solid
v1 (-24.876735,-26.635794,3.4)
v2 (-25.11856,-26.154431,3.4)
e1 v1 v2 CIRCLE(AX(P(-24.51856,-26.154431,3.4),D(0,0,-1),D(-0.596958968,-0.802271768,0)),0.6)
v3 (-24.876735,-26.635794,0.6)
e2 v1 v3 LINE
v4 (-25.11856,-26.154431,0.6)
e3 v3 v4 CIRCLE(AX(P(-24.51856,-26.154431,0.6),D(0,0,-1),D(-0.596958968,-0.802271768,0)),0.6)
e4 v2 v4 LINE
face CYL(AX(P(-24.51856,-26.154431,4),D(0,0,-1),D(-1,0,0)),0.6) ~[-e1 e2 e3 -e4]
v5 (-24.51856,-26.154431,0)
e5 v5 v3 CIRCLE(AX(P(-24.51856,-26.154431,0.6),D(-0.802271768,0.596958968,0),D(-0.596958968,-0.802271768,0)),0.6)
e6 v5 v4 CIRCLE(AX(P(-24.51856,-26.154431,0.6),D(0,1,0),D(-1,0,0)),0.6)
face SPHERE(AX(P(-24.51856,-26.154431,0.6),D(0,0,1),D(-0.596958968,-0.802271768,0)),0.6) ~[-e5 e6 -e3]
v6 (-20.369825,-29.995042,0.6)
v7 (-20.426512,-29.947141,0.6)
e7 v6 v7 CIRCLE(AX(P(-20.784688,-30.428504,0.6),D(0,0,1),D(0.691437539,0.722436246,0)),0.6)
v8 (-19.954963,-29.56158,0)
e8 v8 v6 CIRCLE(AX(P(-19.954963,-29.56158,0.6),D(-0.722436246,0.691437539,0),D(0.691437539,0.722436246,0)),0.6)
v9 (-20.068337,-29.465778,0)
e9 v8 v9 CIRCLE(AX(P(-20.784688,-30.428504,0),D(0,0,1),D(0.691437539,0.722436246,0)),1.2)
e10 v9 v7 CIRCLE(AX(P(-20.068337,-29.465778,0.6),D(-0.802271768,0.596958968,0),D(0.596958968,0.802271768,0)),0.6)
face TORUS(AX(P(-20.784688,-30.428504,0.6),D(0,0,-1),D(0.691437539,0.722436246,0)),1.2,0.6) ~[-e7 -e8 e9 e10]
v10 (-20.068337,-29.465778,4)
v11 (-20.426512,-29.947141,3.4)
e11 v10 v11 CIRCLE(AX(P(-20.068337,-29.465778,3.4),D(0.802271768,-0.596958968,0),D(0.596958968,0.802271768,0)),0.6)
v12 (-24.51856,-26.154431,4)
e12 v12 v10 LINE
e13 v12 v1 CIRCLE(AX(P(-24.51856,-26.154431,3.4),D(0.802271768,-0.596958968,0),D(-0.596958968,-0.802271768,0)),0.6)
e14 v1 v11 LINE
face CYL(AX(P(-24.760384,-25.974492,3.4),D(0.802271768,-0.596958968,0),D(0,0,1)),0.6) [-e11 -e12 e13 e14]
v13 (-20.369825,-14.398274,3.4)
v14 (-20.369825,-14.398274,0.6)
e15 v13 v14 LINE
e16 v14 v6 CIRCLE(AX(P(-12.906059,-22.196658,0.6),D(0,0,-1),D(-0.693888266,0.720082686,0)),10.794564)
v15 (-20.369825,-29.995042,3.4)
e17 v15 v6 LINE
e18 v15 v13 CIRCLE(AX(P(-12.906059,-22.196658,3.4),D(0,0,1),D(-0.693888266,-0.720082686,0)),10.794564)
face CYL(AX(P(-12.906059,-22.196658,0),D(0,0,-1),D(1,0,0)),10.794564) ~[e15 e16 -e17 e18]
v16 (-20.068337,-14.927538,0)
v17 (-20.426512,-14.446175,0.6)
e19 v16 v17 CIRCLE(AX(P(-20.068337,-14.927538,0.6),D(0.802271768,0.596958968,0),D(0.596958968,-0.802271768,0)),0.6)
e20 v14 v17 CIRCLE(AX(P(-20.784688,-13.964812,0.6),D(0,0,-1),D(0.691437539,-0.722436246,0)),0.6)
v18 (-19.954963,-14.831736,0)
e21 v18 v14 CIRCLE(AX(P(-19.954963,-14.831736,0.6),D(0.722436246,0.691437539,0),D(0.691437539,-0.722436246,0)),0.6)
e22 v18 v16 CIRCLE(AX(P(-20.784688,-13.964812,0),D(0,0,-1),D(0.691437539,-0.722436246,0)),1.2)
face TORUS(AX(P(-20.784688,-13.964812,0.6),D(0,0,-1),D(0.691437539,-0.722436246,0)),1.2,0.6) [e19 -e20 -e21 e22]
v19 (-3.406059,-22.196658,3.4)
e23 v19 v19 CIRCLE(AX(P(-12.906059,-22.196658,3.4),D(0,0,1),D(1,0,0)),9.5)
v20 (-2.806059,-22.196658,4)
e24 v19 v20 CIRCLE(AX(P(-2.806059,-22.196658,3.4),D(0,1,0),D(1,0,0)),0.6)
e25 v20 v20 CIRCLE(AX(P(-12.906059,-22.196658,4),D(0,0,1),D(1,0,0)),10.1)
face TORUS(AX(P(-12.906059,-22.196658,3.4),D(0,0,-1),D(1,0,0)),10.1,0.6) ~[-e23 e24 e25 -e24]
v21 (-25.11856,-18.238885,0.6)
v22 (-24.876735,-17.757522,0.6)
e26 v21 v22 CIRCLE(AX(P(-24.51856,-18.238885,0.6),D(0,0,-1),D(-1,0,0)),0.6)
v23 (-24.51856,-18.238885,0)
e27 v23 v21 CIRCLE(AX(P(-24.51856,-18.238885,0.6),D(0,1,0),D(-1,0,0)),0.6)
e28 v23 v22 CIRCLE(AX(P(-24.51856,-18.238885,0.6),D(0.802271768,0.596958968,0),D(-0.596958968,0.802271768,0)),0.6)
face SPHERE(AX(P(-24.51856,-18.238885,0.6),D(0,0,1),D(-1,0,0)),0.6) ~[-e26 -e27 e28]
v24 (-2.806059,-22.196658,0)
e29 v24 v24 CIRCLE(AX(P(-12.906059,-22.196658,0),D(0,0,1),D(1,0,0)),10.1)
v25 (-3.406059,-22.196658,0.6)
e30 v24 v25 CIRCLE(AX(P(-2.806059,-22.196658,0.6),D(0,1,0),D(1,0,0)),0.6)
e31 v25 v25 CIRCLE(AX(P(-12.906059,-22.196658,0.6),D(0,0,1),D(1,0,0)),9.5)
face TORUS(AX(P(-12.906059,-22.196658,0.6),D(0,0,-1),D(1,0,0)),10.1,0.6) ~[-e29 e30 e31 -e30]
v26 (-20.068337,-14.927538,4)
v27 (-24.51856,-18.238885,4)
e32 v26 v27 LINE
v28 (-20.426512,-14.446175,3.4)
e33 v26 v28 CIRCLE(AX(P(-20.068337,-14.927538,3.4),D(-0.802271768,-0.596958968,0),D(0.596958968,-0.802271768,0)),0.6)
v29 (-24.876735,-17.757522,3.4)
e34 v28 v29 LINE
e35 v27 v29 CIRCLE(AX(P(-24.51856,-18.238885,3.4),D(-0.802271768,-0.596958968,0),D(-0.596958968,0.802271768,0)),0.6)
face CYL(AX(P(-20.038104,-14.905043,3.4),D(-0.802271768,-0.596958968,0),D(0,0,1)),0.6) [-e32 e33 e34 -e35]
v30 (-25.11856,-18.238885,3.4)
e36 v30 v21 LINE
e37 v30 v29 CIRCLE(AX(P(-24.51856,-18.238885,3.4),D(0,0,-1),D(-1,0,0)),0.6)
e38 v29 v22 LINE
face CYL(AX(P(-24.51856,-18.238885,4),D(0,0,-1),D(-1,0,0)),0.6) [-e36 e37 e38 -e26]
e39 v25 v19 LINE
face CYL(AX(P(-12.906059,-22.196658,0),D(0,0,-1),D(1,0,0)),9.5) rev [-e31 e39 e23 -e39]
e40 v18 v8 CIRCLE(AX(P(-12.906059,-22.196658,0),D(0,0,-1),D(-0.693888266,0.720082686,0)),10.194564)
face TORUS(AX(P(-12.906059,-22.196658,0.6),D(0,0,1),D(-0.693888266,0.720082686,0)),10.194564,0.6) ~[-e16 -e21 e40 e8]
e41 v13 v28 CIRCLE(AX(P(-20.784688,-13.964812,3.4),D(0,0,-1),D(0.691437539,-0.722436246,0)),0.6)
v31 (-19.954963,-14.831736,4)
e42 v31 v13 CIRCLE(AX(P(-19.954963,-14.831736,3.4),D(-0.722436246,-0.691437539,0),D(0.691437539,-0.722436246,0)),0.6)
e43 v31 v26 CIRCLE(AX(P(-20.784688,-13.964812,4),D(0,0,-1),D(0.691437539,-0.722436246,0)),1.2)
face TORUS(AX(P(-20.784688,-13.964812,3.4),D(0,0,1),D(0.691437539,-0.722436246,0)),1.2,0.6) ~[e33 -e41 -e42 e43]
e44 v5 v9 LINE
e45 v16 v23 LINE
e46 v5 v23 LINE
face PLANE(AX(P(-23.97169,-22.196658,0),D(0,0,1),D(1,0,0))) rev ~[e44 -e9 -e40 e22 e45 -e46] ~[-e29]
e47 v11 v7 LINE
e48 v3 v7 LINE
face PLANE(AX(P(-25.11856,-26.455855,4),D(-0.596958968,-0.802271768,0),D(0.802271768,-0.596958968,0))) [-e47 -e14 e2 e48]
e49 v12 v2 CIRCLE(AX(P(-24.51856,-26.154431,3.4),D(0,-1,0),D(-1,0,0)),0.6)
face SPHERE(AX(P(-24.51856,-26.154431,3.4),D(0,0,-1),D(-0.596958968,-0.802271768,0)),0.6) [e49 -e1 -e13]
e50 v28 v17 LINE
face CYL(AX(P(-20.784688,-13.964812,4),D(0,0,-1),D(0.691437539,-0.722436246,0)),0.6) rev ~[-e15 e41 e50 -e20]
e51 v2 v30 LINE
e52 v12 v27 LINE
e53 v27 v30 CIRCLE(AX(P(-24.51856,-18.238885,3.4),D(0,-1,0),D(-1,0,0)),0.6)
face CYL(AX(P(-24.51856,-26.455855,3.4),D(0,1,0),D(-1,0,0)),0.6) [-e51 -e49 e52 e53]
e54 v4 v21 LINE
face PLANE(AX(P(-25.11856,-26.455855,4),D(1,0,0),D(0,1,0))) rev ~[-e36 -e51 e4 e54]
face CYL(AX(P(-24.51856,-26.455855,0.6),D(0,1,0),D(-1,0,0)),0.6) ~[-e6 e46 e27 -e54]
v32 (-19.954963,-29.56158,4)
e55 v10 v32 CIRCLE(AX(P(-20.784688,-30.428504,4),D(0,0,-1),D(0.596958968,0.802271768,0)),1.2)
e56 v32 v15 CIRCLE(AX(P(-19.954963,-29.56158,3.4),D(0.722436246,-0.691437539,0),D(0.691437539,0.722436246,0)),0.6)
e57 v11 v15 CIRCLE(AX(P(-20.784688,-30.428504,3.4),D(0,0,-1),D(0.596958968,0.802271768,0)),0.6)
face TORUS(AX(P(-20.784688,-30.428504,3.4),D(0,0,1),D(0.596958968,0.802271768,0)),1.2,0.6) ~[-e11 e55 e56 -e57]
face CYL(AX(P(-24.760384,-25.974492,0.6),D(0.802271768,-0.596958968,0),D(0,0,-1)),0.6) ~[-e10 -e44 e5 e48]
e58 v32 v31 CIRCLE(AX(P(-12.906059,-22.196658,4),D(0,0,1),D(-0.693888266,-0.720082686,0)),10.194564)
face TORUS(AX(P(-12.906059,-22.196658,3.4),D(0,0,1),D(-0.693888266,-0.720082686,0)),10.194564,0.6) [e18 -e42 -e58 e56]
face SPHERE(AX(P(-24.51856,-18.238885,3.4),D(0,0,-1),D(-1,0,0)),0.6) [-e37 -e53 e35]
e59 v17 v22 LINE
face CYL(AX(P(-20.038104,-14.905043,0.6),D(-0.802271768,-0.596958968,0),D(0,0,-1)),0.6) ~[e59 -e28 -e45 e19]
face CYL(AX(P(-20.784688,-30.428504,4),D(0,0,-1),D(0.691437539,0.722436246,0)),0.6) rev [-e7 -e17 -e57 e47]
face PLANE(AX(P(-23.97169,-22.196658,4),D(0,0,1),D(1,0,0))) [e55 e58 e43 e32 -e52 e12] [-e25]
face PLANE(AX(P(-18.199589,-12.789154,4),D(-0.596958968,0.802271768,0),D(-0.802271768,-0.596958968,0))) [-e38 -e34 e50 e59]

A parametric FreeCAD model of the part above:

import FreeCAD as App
import Part
import Sketcher

V = App.Vector
Q = App.Units.Quantity


def edges_at(feature, points):
    """Names of the edges that pass closest to the given points."""
    edges = feature.Shape.Edges
    near = lambda p: min(range(len(edges)), key=lambda i: edges[i].distToShape(Part.Vertex(*p))[0])
    return sorted({f"Edge{near(p) + 1}" for p in points})


def add_polygon(sketch, points):
    """Adds a closed chain of lines whose ends are joined by coincident constraints."""
    first, n = sketch.GeometryCount, len(points)
    for a, b in zip(points, points[1:] + points[:1]):
        sketch.addGeometry(Part.LineSegment(App.Vector(*a, 0), App.Vector(*b, 0)), False)
    for i in range(n):
        sketch.addConstraint(Sketcher.Constraint("Coincident", first + i, 2, first + (i + 1) % n, 1))

doc = App.newDocument("Part")
body = doc.addObject("PartDesign::Body", "Body")

sketch1 = doc.addObject("Sketcher::SketchObject", "Sketch")
body.addObject(sketch1)
sketch1.AttachmentSupport = (doc.XY_Plane, [""])
sketch1.MapMode = "FlatFace"
sketch1.addGeometry([
    Part.Circle(V(-13, -22, 0), V(0, 0, 1), 11),
    Part.Circle(V(-13, -22, 0), V(0, 0, 1), 10),
], False)
sketch1.addConstraint([
    Sketcher.Constraint("Coincident", 1, 3, 0, 3),
    Sketcher.Constraint("Diameter", 1, Q("19 mm")),
    Sketcher.Constraint("Diameter", 0, Q("21.589127 mm")),
    Sketcher.Constraint("DistanceX", 0, 3, -1, 1, Q("12.906059 mm")),
    Sketcher.Constraint("DistanceY", 0, 3, -1, 1, Q("22.196658 mm")),
])
pad1 = doc.addObject("PartDesign::Pad", "Pad")
body.addObject(pad1)
pad1.Profile = sketch1
pad1.Length = 4

sketch2 = doc.addObject("Sketcher::SketchObject", "Sketch001")
body.addObject(sketch2)
sketch2.AttachmentSupport = (doc.XY_Plane, [""])
sketch2.MapMode = "FlatFace"
sketch2.AttachmentOffset = App.Placement(V(0, 0, 4), App.Rotation())
add_polygon(sketch2, [(-25, -18), (-25, -26), (-18, -32), (-23, -26), (-23, -18), (-18, -13)])
sketch2.addConstraint([
    Sketcher.Constraint("Vertical", 0),
    Sketcher.Constraint("Vertical", 3),
    Sketcher.Constraint("Horizontal", 0, 2, 2, 2),
    Sketcher.Constraint("Horizontal", 3, 2, 5, 2),
    Sketcher.Constraint("Vertical", 1, 2, 4, 2),
    Sketcher.Constraint("Equal", 2, 4),
    Sketcher.Constraint("DistanceY", 1, 2, 3, 2, Q("13.666702 mm")),
    Sketcher.Constraint("DistanceY", 0, 2, 0, 1, Q("8.518395 mm")),
    Sketcher.Constraint("DistanceX", 0, 2, -1, 1, Q("25.11856 mm")),
    Sketcher.Constraint("DistanceX", 1, 2, -1, 1, Q("18.199589 mm")),
    Sketcher.Constraint("DistanceX", 2, 2, -1, 1, Q("22.824821 mm")),
    Sketcher.Constraint("DistanceY", 3, 2, -1, 1, Q("17.937461 mm")),
])
pad2 = doc.addObject("PartDesign::Pad", "Pad001")
body.addObject(pad2)
pad2.Profile = sketch2
pad2.Length = 4
pad2.Reversed = True
doc.recompute()

fillet = doc.addObject("PartDesign::Fillet", "Fillet")
body.addObject(fillet)
fillet.Base = (pad2, edges_at(pad2, [
    (-2.111, -22.197, 4),
    (-2.111, -22.197, 0),
    (-22.757, -28.213, 0),
    (-25.119, -22.197, 4),
    (-22.757, -16.181, 4),
    (-25.119, -22.197, 0),
    (-22.757, -16.181, 0),
    (-22.406, -22.197, 4),
    (-22.406, -22.197, 0),
    (-25.119, -26.456, 2),
    (-25.119, -17.937, 2),
    (-20.396, -14.424, 2),
    (-20.396, -29.97, 2),
    (-22.757, -28.213, 4),
]))
fillet.Radius = 0.6

doc.recompute()
